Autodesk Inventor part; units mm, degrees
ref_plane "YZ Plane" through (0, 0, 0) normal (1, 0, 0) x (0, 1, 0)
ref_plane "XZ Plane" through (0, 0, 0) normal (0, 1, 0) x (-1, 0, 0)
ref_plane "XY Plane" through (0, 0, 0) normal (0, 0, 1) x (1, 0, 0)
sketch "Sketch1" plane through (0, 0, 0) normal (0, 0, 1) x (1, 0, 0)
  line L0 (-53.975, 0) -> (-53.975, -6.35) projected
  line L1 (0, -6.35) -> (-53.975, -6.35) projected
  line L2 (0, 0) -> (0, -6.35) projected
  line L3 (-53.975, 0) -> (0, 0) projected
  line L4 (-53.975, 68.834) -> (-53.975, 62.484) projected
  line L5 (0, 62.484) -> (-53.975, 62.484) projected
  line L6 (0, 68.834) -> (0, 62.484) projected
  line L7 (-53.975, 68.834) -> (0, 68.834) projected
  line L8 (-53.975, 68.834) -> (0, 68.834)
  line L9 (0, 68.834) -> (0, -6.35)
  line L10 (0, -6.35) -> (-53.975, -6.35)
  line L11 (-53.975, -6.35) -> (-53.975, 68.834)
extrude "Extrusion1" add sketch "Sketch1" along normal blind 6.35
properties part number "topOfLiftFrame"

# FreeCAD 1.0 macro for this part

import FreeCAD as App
import Part
import Sketcher
Q = App.Units.Quantity

doc = App.newDocument("Part")
body = doc.addObject("PartDesign::Body", "Body")

sketch1 = body.newObject("Sketcher::SketchObject", "Sketch")
sketch1.AttachmentSupport = (doc.getObject("XY_Plane"), [""])
sketch1.MapMode = "FlatFace"
sketch1.addGeometry([
    Part.LineSegment(App.Vector(0, -6, 0), App.Vector(0, 69, 0)),
    Part.LineSegment(App.Vector(0, 69, 0), App.Vector(-54, 69, 0)),
    Part.LineSegment(App.Vector(-54, 69, 0), App.Vector(-54, -6, 0)),
    Part.LineSegment(App.Vector(-54, -6, 0), App.Vector(0, -6, 0)),
], False)
sketch1.addConstraint([
    Sketcher.Constraint("Coincident", 0, 2, 1, 1),
    Sketcher.Constraint("Coincident", 1, 2, 2, 1),
    Sketcher.Constraint("Coincident", 2, 2, 3, 1),
    Sketcher.Constraint("Coincident", 3, 2, 0, 1),
    Sketcher.Constraint("Vertical", 0),
    Sketcher.Constraint("Horizontal", 1),
    Sketcher.Constraint("Vertical", 2),
    Sketcher.Constraint("Horizontal", 3),
    Sketcher.Constraint("PointOnObject", 0, 2, -2),
    Sketcher.Constraint("DistanceY", 0, 1, 0, 2, Q("2.96 in")),
    Sketcher.Constraint("DistanceX", 1, 2, 1, 1, Q("2.125 in")),
    Sketcher.Constraint("DistanceY", -1, 1, 0, 2, Q("2.71 in")),
])
pad1 = body.newObject("PartDesign::Pad", "Pad")
pad1.Profile = sketch1
pad1.Length = Q("0.25 in")

doc.recompute()
